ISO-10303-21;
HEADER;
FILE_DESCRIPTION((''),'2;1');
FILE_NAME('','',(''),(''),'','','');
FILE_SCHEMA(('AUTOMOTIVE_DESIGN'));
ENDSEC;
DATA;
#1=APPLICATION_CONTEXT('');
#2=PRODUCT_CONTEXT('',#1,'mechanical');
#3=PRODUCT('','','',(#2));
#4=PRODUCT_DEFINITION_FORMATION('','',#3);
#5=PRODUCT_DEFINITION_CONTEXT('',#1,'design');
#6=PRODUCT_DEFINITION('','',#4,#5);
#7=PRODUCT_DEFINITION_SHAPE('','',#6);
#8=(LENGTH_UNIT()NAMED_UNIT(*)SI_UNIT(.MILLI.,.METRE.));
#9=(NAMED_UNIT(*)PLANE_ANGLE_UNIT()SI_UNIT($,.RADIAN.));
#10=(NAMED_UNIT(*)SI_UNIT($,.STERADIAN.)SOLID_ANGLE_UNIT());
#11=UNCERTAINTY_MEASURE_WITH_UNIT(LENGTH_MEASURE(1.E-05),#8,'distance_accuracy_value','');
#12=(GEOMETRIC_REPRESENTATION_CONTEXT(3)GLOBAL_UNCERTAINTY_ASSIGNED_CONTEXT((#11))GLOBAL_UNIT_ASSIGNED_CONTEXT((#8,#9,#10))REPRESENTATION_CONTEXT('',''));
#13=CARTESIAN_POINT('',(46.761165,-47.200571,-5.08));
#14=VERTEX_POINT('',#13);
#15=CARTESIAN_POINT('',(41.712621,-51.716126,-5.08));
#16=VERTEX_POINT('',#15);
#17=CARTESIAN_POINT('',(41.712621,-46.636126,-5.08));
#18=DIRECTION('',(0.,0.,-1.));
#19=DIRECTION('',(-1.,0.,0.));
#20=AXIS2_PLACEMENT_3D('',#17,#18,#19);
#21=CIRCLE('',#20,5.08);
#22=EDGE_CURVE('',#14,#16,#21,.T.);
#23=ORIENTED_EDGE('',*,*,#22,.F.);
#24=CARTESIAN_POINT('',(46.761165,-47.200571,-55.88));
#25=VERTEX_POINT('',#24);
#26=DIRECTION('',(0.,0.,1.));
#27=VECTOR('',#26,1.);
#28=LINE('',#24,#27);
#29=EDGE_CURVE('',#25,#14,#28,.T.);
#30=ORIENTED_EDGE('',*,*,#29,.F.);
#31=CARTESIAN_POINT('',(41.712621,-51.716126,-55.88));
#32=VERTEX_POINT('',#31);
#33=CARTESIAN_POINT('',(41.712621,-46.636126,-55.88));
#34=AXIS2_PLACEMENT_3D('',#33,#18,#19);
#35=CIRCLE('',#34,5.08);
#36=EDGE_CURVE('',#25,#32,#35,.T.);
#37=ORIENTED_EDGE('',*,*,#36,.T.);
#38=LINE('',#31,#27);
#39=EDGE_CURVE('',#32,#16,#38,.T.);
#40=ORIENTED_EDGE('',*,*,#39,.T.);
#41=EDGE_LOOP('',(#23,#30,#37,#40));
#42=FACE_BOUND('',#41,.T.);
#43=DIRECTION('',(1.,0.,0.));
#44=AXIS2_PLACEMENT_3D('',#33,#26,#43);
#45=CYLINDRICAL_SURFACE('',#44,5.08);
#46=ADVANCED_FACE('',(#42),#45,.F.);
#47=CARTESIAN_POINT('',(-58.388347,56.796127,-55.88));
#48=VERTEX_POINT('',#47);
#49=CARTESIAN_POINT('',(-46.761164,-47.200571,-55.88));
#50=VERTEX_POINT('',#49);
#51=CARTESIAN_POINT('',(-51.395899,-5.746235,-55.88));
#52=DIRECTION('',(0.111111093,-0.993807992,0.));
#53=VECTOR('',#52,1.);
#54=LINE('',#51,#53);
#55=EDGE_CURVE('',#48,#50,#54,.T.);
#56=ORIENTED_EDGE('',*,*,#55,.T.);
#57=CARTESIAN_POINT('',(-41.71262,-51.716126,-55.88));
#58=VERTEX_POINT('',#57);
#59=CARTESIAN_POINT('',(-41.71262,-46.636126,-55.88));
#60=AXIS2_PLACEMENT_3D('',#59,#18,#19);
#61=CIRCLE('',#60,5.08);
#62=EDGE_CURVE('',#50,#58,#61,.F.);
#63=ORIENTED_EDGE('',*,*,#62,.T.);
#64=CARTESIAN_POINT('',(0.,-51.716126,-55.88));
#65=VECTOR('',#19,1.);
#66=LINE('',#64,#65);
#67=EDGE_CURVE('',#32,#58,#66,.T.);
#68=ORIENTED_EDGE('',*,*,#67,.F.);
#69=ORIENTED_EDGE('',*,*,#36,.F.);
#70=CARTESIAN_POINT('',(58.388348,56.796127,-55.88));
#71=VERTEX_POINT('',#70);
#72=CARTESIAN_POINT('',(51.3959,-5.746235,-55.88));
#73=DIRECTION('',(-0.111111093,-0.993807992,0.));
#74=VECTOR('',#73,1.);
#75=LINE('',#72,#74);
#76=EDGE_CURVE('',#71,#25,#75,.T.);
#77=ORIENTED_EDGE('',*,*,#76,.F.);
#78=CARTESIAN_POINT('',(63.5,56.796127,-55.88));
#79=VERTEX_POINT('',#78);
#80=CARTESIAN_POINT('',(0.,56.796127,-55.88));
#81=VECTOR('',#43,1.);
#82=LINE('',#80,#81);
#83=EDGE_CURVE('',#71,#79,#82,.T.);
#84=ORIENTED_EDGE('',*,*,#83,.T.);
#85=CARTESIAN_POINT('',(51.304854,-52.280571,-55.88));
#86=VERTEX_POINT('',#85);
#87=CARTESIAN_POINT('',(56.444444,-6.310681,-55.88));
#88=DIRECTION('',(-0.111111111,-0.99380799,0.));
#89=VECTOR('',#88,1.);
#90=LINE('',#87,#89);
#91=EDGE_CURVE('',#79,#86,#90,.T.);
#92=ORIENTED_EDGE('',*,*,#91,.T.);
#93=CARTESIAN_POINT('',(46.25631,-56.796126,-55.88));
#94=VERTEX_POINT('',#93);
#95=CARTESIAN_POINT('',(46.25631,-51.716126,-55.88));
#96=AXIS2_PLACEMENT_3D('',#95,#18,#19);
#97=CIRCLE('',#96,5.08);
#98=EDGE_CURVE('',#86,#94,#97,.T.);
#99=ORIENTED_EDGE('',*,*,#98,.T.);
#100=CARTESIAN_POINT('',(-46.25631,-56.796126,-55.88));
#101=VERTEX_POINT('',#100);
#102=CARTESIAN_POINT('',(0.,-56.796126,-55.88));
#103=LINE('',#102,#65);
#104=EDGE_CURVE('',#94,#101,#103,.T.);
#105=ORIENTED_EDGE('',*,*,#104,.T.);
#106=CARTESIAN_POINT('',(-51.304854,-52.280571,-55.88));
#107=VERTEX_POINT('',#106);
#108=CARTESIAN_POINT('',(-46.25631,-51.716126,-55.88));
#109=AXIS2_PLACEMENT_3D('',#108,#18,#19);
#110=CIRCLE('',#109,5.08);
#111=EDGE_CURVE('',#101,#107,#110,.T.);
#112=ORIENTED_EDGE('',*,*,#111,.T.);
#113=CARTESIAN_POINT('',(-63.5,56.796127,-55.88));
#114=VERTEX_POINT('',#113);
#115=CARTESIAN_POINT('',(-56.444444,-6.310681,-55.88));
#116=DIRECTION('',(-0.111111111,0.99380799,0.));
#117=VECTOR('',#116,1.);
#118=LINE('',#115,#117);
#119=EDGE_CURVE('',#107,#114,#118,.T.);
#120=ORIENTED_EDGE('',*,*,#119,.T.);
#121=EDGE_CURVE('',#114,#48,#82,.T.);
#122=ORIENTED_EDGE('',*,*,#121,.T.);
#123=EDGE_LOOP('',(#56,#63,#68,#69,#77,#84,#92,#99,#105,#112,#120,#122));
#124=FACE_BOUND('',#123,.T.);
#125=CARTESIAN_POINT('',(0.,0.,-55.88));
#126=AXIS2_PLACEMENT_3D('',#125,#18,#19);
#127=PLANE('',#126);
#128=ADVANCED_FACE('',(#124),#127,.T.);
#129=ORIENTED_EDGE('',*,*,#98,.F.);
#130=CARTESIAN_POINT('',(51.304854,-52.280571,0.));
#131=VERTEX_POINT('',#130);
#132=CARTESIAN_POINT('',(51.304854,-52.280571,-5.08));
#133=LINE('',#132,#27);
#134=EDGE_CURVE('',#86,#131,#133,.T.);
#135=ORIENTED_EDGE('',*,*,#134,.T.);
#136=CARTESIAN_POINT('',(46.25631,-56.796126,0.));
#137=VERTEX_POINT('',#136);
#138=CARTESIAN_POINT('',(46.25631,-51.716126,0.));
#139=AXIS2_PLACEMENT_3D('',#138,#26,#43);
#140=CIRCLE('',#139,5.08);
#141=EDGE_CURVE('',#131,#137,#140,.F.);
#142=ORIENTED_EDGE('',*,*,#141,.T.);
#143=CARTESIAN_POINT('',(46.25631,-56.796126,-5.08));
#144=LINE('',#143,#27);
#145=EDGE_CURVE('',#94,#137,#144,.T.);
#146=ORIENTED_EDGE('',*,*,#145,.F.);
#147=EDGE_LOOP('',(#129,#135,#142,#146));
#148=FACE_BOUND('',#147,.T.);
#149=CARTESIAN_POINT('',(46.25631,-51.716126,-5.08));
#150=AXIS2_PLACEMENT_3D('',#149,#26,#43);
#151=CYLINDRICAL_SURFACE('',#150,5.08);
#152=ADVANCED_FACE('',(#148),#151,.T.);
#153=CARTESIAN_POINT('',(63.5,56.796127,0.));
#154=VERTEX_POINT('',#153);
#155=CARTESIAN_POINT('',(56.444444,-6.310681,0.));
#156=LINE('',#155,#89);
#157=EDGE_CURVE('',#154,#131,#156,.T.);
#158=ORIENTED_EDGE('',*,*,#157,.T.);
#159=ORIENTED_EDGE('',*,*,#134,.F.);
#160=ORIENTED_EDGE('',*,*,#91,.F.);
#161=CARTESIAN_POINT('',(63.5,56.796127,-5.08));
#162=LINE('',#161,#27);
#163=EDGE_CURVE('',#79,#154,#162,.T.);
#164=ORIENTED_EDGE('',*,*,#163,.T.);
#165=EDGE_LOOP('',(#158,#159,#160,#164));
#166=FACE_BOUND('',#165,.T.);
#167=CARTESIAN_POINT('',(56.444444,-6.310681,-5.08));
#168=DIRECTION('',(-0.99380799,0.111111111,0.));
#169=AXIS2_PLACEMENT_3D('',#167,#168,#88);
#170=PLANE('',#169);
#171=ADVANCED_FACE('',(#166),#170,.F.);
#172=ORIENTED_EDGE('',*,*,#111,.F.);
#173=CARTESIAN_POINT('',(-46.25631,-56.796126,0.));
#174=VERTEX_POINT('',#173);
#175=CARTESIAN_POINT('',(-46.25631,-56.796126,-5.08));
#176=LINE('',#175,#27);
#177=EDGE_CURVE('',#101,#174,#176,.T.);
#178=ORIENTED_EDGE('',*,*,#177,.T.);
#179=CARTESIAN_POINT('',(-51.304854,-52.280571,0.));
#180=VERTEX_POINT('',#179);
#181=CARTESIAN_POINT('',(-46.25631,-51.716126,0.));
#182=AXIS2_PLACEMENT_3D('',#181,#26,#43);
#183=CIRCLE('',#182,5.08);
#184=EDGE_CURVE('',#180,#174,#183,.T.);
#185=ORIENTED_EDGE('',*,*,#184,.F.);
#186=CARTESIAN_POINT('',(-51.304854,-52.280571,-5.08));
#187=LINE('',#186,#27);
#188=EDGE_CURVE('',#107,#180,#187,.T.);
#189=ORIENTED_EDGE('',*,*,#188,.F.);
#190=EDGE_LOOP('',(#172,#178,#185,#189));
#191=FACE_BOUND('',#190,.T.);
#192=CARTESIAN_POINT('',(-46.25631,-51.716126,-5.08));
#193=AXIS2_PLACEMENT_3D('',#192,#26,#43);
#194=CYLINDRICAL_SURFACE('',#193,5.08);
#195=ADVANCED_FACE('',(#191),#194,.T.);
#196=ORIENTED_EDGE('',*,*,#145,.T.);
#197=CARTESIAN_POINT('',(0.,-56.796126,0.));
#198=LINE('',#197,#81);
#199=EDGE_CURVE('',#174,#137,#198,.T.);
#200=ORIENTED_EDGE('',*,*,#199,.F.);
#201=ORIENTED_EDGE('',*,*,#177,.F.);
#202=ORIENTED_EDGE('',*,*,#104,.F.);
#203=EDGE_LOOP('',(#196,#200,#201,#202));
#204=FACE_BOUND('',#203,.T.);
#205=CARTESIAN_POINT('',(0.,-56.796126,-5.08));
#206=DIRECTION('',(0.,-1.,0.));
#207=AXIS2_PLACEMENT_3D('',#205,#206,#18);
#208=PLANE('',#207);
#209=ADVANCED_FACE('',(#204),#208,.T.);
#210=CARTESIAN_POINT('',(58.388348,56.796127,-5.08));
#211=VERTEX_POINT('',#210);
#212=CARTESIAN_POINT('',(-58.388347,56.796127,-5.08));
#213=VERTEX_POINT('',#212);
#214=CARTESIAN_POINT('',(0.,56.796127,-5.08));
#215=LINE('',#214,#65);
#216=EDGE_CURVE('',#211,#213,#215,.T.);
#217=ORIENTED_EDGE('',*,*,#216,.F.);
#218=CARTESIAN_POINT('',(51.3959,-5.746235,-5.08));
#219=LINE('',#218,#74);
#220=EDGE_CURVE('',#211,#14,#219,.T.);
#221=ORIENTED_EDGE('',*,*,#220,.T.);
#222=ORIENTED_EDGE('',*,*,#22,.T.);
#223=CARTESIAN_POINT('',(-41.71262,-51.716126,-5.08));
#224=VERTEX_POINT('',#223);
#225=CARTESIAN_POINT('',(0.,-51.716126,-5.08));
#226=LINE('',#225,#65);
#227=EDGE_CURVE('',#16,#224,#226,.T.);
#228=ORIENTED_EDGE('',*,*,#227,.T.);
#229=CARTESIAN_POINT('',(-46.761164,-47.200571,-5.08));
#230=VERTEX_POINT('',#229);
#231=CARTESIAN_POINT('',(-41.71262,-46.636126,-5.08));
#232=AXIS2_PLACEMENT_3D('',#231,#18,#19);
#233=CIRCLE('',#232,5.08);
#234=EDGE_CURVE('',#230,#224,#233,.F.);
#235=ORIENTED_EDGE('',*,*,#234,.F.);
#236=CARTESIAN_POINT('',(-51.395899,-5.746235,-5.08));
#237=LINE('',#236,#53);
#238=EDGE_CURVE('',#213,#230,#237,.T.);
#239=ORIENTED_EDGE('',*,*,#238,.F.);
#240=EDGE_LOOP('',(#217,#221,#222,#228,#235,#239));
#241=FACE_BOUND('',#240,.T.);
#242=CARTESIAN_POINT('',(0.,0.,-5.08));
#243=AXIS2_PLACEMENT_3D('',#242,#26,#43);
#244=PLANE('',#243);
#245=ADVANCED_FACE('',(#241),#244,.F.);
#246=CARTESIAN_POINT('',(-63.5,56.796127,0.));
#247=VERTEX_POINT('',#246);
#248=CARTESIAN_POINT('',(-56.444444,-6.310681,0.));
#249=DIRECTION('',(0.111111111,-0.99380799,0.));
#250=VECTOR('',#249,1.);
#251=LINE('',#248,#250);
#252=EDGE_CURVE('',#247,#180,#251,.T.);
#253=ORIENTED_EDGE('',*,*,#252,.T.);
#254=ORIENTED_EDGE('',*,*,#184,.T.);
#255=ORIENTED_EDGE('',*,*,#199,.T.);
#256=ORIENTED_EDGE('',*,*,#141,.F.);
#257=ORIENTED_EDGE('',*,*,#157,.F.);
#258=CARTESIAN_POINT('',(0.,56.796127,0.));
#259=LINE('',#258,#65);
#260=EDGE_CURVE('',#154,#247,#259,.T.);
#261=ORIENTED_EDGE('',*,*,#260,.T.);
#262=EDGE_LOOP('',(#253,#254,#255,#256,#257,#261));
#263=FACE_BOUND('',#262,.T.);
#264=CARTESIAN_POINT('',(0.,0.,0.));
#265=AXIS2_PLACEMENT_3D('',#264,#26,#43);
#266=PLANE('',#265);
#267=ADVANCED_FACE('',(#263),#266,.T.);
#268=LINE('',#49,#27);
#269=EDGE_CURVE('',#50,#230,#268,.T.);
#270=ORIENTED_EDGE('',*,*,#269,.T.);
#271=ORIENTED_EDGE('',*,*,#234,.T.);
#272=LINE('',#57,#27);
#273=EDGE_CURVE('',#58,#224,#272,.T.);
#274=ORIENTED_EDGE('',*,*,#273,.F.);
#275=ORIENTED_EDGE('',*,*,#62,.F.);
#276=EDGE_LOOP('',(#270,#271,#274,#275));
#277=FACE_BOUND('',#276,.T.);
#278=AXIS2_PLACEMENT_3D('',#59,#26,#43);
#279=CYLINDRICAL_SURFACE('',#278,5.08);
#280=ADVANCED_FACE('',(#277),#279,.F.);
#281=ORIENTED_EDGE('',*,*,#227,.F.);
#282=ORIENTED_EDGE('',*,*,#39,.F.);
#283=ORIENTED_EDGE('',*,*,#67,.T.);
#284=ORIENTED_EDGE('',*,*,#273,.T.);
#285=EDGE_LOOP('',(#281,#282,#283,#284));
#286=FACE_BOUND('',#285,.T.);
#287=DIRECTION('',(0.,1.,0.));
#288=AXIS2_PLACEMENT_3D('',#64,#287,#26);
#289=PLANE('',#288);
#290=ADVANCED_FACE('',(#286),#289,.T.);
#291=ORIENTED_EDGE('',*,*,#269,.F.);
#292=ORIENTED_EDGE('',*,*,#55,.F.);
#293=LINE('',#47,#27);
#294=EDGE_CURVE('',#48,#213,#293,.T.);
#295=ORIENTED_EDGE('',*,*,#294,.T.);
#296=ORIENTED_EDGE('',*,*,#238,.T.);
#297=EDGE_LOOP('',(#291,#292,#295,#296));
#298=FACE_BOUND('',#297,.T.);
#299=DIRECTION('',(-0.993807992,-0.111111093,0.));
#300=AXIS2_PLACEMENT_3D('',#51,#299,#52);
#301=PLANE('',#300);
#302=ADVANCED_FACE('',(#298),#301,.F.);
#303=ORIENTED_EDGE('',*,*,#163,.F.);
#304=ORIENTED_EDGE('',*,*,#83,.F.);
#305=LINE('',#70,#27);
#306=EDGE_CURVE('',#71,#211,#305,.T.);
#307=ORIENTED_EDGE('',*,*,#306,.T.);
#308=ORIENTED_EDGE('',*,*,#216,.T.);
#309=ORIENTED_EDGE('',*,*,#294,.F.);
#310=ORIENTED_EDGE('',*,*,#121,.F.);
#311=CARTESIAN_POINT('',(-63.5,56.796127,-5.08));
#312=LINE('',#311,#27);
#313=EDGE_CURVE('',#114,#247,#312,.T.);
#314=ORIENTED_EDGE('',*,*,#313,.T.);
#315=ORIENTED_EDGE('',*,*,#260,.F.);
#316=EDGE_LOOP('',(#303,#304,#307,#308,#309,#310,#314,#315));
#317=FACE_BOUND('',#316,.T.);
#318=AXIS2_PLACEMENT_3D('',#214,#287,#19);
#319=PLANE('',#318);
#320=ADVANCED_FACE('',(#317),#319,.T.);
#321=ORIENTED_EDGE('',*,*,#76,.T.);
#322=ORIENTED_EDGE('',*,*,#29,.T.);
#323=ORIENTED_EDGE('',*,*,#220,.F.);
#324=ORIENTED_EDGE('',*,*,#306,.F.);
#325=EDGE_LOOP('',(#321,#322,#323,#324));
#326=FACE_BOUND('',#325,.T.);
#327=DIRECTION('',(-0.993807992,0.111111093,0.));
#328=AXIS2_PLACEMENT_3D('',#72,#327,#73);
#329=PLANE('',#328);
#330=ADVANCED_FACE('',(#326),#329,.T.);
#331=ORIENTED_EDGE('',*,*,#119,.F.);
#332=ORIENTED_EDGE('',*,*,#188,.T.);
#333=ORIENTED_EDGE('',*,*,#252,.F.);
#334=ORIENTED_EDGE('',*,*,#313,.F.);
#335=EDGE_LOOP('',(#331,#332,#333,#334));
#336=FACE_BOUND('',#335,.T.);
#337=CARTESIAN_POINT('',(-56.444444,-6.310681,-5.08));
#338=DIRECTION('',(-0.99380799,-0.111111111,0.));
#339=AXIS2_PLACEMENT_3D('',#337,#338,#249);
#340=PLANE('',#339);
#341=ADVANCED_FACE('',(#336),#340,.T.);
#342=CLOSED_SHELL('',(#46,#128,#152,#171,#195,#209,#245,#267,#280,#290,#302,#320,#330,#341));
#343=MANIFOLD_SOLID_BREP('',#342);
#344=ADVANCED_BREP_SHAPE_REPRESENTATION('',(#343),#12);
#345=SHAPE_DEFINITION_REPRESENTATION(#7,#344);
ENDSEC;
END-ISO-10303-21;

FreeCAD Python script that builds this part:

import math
import FreeCAD as App
import Part
import Sketcher
Q = App.Units.Quantity

doc = App.newDocument("Part")
body = doc.addObject("PartDesign::Body", "Body")

sketch1 = doc.addObject("Sketcher::SketchObject", "Sketch")
body.addObject(sketch1)
sketch1.AttachmentSupport = (doc.XY_Plane, [""])
sketch1.MapMode = "FlatFace"
sketch1.addGeometry([
    Part.LineSegment(App.Vector(63.5, 56.796127, 0), App.Vector(-63.5, 56.796127, 0)),
    Part.LineSegment(App.Vector(-63.5, 56.796127, 0), App.Vector(-51.304854, -52.280571, 0)),
    Part.ArcOfCircle(Part.Circle(App.Vector(-46.25631, -51.716126, 0), App.Vector(0, 0, 1), 5.08), math.radians(-173.62063), math.radians(-90)),
    Part.LineSegment(App.Vector(-46.25631, -56.796126, 0), App.Vector(46.25631, -56.796126, 0)),
    Part.ArcOfCircle(Part.Circle(App.Vector(46.25631, -51.716126, 0), App.Vector(0, 0, 1), 5.08), math.radians(-90), math.radians(-6.37937)),
    Part.LineSegment(App.Vector(51.304854, -52.280571, 0), App.Vector(63.5, 56.796127, 0)),
], False)
sketch1.addConstraint([
    Sketcher.Constraint("Coincident", 0, 2, 1, 1),
    Sketcher.Constraint("Tangent", 1, 2, 2, 1),
    Sketcher.Constraint("Tangent", 2, 2, 3, 1),
    Sketcher.Constraint("Tangent", 3, 2, 4, 1),
    Sketcher.Constraint("Tangent", 4, 2, 5, 1),
    Sketcher.Constraint("Coincident", 5, 2, 0, 1),
    Sketcher.Constraint("Horizontal", 0),
    Sketcher.Constraint("Horizontal", 3),
    Sketcher.Constraint("Equal", 2, 4),
    Sketcher.Constraint("Symmetric", 1, 2, 4, 2, -2),
    Sketcher.Constraint("Radius", 2, Q("0.2 in")),
    Sketcher.Constraint("DistanceX", 0, 2, 0, 1, Q("5 in")),
    Sketcher.Constraint("DistanceX", 3, 1, 3, 2, 92.51262),
    Sketcher.Constraint("Distance", 1, 109.75631),
    Sketcher.Constraint("DistanceY", 1, 2, -1, 1, 52.280571),
])
pad1 = doc.addObject("PartDesign::Pad", "Pad")
body.addObject(pad1)
pad1.Profile = sketch1
pad1.Length = Q("0.2 in")
pad1.Reversed = True

sketch2 = doc.addObject("Sketcher::SketchObject", "Sketch001")
body.addObject(sketch2)
sketch2.AttachmentSupport = (doc.XY_Plane, [""])
sketch2.MapMode = "FlatFace"
sketch2.AttachmentOffset = App.Placement(App.Vector(0, 0, -0.2 * 25.4), App.Rotation())
sketch2.addGeometry([
    Part.LineSegment(App.Vector(-58.388347, 56.796127, 0), App.Vector(-63.499993, 56.796127, 0)),
    Part.LineSegment(App.Vector(-63.499993, 56.796127, 0), App.Vector(-51.304854, -52.280571, 0)),
    Part.ArcOfCircle(Part.Circle(App.Vector(-46.25631, -51.716126, 0), App.Vector(0, 0, 1), 5.08), math.radians(-173.620633), math.radians(-90)),
    Part.LineSegment(App.Vector(-46.25631, -56.796126, 0), App.Vector(46.256311, -56.796126, 0)),
    Part.ArcOfCircle(Part.Circle(App.Vector(46.256311, -51.716126, 0), App.Vector(0, 0, 1), 5.08), math.radians(-90), math.radians(-6.379367)),
    Part.LineSegment(App.Vector(51.304856, -52.280571, 0), App.Vector(63.499994, 56.796127, 0)),
    Part.LineSegment(App.Vector(63.499994, 56.796127, 0), App.Vector(58.388348, 56.796127, 0)),
    Part.LineSegment(App.Vector(58.388348, 56.796127, 0), App.Vector(46.761165, -47.200571, 0)),
    Part.ArcOfCircle(Part.Circle(App.Vector(41.712621, -46.636126, 0), App.Vector(0, 0, 1), 5.08), math.radians(-90), math.radians(-6.379369)),
    Part.LineSegment(App.Vector(41.712621, -51.716126, 0), App.Vector(-41.71262, -51.716126, 0)),
    Part.ArcOfCircle(Part.Circle(App.Vector(-41.71262, -46.636126, 0), App.Vector(0, 0, 1), 5.08), math.radians(-173.620631), math.radians(-90)),
    Part.LineSegment(App.Vector(-46.761164, -47.200571, 0), App.Vector(-58.388347, 56.796127, 0)),
], False)
sketch2.addConstraint([
    Sketcher.Constraint("Coincident", 0, 2, 1, 1),
    Sketcher.Constraint("Coincident", 1, 2, 2, 1),
    Sketcher.Constraint("Coincident", 2, 2, 3, 1),
    Sketcher.Constraint("Coincident", 3, 2, 4, 1),
    Sketcher.Constraint("Coincident", 4, 2, 5, 1),
    Sketcher.Constraint("Coincident", 5, 2, 6, 1),
    Sketcher.Constraint("Coincident", 6, 2, 7, 1),
    Sketcher.Constraint("Coincident", 7, 2, 8, 2),
    Sketcher.Constraint("Coincident", 8, 1, 9, 1),
    Sketcher.Constraint("Coincident", 9, 2, 10, 2),
    Sketcher.Constraint("Coincident", 10, 1, 11, 1),
    Sketcher.Constraint("Coincident", 11, 2, 0, 1),
    Sketcher.Constraint("Horizontal", 0),
    Sketcher.Constraint("Horizontal", 3),
    Sketcher.Constraint("Horizontal", 6),
    Sketcher.Constraint("Horizontal", 9),
    Sketcher.Constraint("Radius", 2, Q("0.2 in")),
    Sketcher.Constraint("Radius", 4, Q("0.2 in")),
    Sketcher.Constraint("Radius", 8, Q("0.2 in")),
    Sketcher.Constraint("Radius", 10, Q("0.2 in")),
    Sketcher.Constraint("DistanceY", 4, 3, 8, 3, Q("0.2 in")),
    Sketcher.Constraint("DistanceY", 4, 2, 7, 2, Q("0.2 in")),
    Sketcher.Constraint("DistanceY", 1, 2, 10, 1, Q("0.2 in")),
    Sketcher.Constraint("DistanceX", 3, 1, 3, 2, 92.512621),
    Sketcher.Constraint("DistanceX", 9, 2, 9, 1, 83.42524),
    Sketcher.Constraint("Distance", 1, 109.756309),
    Sketcher.Constraint("Distance", 5, 109.756309),
    Sketcher.Constraint("Distance", 7, 104.644658),
    Sketcher.Constraint("Distance", 11, 104.644658),
    Sketcher.Constraint("DistanceX", 0, 2, 0, 1, 5.111647),
    Sketcher.Constraint("DistanceX", 6, 2, 6, 1, 5.111647),
    Sketcher.Constraint("DistanceX", 2, 3, -1, 1, 46.25631),
    Sketcher.Constraint("DistanceX", -1, 1, 4, 3, 46.256311),
    Sketcher.Constraint("DistanceY", 1, 2, -1, 1, 52.280571),
    Sketcher.Constraint("DistanceX", 2, 2, -1, 1, 46.25631),
    Sketcher.Constraint("DistanceY", 4, 2, -1, 1, 52.280571),
    Sketcher.Constraint("DistanceX", -1, 1, 8, 1, 41.712621),
    Sketcher.Constraint("DistanceX", 0, 2, 1, 2, 12.195139),
    Sketcher.Constraint("DistanceX", 4, 2, 5, 2, 12.195139),
    Sketcher.Constraint("DistanceY", 2, 3, -1, 1, 51.716126),
])
pad2 = doc.addObject("PartDesign::Pad", "Pad001")
body.addObject(pad2)
pad2.Profile = sketch2
pad2.Length = Q("2 in")
pad2.Reversed = True

doc.recompute()
